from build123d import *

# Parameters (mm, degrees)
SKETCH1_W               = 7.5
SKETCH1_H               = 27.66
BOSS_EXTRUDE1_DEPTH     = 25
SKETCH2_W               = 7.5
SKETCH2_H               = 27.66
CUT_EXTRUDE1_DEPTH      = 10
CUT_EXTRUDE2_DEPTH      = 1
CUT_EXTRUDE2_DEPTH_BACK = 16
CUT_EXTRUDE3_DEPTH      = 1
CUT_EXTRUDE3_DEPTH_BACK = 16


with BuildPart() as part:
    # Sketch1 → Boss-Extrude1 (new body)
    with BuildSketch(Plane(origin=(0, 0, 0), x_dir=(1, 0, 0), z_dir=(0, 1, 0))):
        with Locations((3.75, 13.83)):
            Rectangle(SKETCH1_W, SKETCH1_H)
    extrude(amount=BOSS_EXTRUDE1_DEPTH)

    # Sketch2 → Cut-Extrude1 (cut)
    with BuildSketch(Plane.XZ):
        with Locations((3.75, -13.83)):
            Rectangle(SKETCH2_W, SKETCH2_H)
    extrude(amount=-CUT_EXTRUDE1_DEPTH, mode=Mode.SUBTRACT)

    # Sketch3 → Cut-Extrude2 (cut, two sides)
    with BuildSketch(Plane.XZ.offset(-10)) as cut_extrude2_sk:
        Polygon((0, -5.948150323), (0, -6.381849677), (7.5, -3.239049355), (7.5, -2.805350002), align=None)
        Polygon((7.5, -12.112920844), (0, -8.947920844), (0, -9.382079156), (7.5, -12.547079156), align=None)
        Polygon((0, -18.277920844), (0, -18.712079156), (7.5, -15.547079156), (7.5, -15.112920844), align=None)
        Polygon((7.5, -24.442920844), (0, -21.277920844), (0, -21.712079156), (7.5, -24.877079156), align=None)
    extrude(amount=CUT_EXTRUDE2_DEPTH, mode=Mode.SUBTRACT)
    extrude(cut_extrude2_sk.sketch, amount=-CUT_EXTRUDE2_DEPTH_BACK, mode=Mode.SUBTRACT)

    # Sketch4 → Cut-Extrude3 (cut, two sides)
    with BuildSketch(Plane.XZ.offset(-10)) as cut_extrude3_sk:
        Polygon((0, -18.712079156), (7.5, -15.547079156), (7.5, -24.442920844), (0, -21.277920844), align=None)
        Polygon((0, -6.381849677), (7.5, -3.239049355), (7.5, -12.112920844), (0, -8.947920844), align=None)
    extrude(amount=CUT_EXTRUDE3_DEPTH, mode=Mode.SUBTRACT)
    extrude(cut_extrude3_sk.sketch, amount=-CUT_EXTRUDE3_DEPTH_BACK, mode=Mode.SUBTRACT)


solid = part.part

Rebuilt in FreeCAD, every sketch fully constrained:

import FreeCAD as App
import Part
import Sketcher
from FreeCAD import Vector

doc = App.newDocument("Part")
body = doc.addObject("PartDesign::Body", "Body")
body.AllowCompound = True

# Sketch on XZ plane
sketch1 = body.newObject("Sketcher::SketchObject", "Sketch")
sketch1.AttachmentSupport = (doc.getObject("XZ_Plane"), [""])
sketch1.MapMode = "FlatFace"
sketch1.addGeometry([
    Part.LineSegment(Vector(0, -27.66, 0), Vector(0, 0, 0)),
    Part.LineSegment(Vector(0, 0, 0), Vector(7.5, 0, 0)),
    Part.LineSegment(Vector(7.5, 0, 0), Vector(7.5, -27.66, 0)),
    Part.LineSegment(Vector(7.5, -27.66, 0), Vector(0, -27.66, 0)),
], False)
sketch1.addConstraint([
    Sketcher.Constraint("Coincident", 0, 2, 1, 1),
    Sketcher.Constraint("Coincident", 1, 2, 2, 1),
    Sketcher.Constraint("Coincident", 2, 2, 3, 1),
    Sketcher.Constraint("Coincident", 3, 2, 0, 1),
    Sketcher.Constraint("Vertical", 0),
    Sketcher.Constraint("Horizontal", 1),
    Sketcher.Constraint("Vertical", 2),
    Sketcher.Constraint("Horizontal", 3),
    Sketcher.Constraint("Coincident", 0, 2, -1, 1),
    Sketcher.Constraint("DistanceX", 1, 1, 1, 2, 7.5),
    Sketcher.Constraint("DistanceY", 0, 1, 0, 2, 27.66),
])
pad1 = body.newObject("PartDesign::Pad", "Pad")
pad1.Profile = sketch1
pad1.Length = 25
pad1.Reversed = True

# Sketch on XZ plane
sketch2 = body.newObject("Sketcher::SketchObject", "Sketch001")
sketch2.AttachmentSupport = (doc.getObject("XZ_Plane"), [""])
sketch2.MapMode = "FlatFace"
sketch2.addGeometry([
    Part.LineSegment(Vector(0, 0, 0), Vector(0, -27.66, 0)),
    Part.LineSegment(Vector(0, -27.66, 0), Vector(7.5, -27.66, 0)),
    Part.LineSegment(Vector(7.5, -27.66, 0), Vector(7.5, 0, 0)),
    Part.LineSegment(Vector(7.5, 0, 0), Vector(0, 0, 0)),
], False)
sketch2.addConstraint([
    Sketcher.Constraint("Coincident", 0, 2, 1, 1),
    Sketcher.Constraint("Coincident", 1, 2, 2, 1),
    Sketcher.Constraint("Coincident", 2, 2, 3, 1),
    Sketcher.Constraint("Coincident", 3, 2, 0, 1),
    Sketcher.Constraint("Vertical", 0),
    Sketcher.Constraint("Horizontal", 1),
    Sketcher.Constraint("Vertical", 2),
    Sketcher.Constraint("Horizontal", 3),
    Sketcher.Constraint("Coincident", 3, 2, -1, 1),
    Sketcher.Constraint("DistanceX", 1, 1, 1, 2, 7.5),
    Sketcher.Constraint("DistanceY", 0, 2, 0, 1, 27.66),
])
pocket1 = body.newObject("PartDesign::Pocket", "Pocket")
pocket1.Profile = sketch2
pocket1.Length = 10

# Sketch on XZ plane
sketch3 = body.newObject("Sketcher::SketchObject", "Sketch002")
sketch3.AttachmentSupport = (doc.getObject("XZ_Plane"), [""])
sketch3.MapMode = "FlatFace"
sketch3.AttachmentOffset = App.Placement(Vector(0, 0, -10), App.Rotation())
sketch3.addGeometry([
    Part.LineSegment(Vector(0, -5.94815, 0), Vector(0, -6.38185, 0)),  # 0
    Part.LineSegment(Vector(0, -6.38185, 0), Vector(7.5, -3.239049, 0)),  # 1
    Part.LineSegment(Vector(7.5, -3.239049, 0), Vector(7.5, -2.80535, 0)),  # 2
    Part.LineSegment(Vector(7.5, -2.80535, 0), Vector(0, -5.94815, 0)),  # 3
    Part.LineSegment(Vector(7.5, -12.112921, 0), Vector(0, -8.947921, 0)),  # 4
    Part.LineSegment(Vector(0, -8.947921, 0), Vector(0, -9.382079, 0)),  # 5
    Part.LineSegment(Vector(0, -9.382079, 0), Vector(7.5, -12.547079, 0)),  # 6
    Part.LineSegment(Vector(7.5, -12.547079, 0), Vector(7.5, -12.112921, 0)),  # 7
    Part.LineSegment(Vector(0, -18.277921, 0), Vector(0, -18.712079, 0)),  # 8
    Part.LineSegment(Vector(0, -18.712079, 0), Vector(7.5, -15.547079, 0)),  # 9
    Part.LineSegment(Vector(7.5, -15.547079, 0), Vector(7.5, -15.112921, 0)),  # 10
    Part.LineSegment(Vector(7.5, -15.112921, 0), Vector(0, -18.277921, 0)),  # 11
    Part.LineSegment(Vector(7.5, -24.442921, 0), Vector(0, -21.277921, 0)),  # 12
    Part.LineSegment(Vector(0, -21.277921, 0), Vector(0, -21.712079, 0)),  # 13
    Part.LineSegment(Vector(0, -21.712079, 0), Vector(7.5, -24.877079, 0)),  # 14
    Part.LineSegment(Vector(7.5, -24.877079, 0), Vector(7.5, -24.442921, 0)),  # 15
], False)
sketch3.addConstraint([
    Sketcher.Constraint("Coincident", 0, 2, 1, 1),
    Sketcher.Constraint("Coincident", 1, 2, 2, 1),
    Sketcher.Constraint("Coincident", 2, 2, 3, 1),
    Sketcher.Constraint("Coincident", 3, 2, 0, 1),
    Sketcher.Constraint("Coincident", 4, 2, 5, 1),
    Sketcher.Constraint("Coincident", 5, 2, 6, 1),
    Sketcher.Constraint("Coincident", 6, 2, 7, 1),
    Sketcher.Constraint("Coincident", 7, 2, 4, 1),
    Sketcher.Constraint("Coincident", 8, 2, 9, 1),
    Sketcher.Constraint("Coincident", 9, 2, 10, 1),
    Sketcher.Constraint("Coincident", 10, 2, 11, 1),
    Sketcher.Constraint("Coincident", 11, 2, 8, 1),
    Sketcher.Constraint("Coincident", 12, 2, 13, 1),
    Sketcher.Constraint("Coincident", 13, 2, 14, 1),
    Sketcher.Constraint("Coincident", 14, 2, 15, 1),
    Sketcher.Constraint("Coincident", 15, 2, 12, 1),
    Sketcher.Constraint("Vertical", 0),
    Sketcher.Constraint("Vertical", 2),
    Sketcher.Constraint("Vertical", 5),
    Sketcher.Constraint("Vertical", 7),
    Sketcher.Constraint("Vertical", 8),
    Sketcher.Constraint("Vertical", 10),
    Sketcher.Constraint("Vertical", 13),
    Sketcher.Constraint("Vertical", 15),
    Sketcher.Constraint("PointOnObject", 0, 2, -2),
    Sketcher.Constraint("PointOnObject", 4, 2, -2),
    Sketcher.Constraint("PointOnObject", 8, 2, -2),
    Sketcher.Constraint("PointOnObject", 12, 2, -2),
    Sketcher.Constraint("Parallel", 1, 3),
    Sketcher.Constraint("Parallel", 4, 6),
    Sketcher.Constraint("Parallel", 9, 11),
    Sketcher.Constraint("Parallel", 6, 12),
    Sketcher.Constraint("Parallel", 12, 14),
    Sketcher.Constraint("Vertical", 2, 2, 6, 2),
    Sketcher.Constraint("Vertical", 7, 2, 9, 2),
    Sketcher.Constraint("Vertical", 10, 2, 14, 2),
    Sketcher.Constraint("Equal", 7, 8),
    Sketcher.Constraint("Equal", 10, 13),
    Sketcher.Constraint("Equal", 6, 9),
    Sketcher.Constraint("DistanceY", 9, 2, 6, 2, 3.0),
    Sketcher.Constraint("DistanceY", 12, 2, 11, 2, 3.0),
    Sketcher.Constraint("DistanceX", -1, 1, 1, 2, 7.5),
    Sketcher.Constraint("DistanceY", 8, 2, 5, 2, 9.33),
    Sketcher.Constraint("DistanceY", 0, 2, 0, 1, 0.433699),
    Sketcher.Constraint("DistanceY", 5, 2, 5, 1, 0.434158),
    Sketcher.Constraint("DistanceY", 0, 2, 1, 2, 3.1428),
    Sketcher.Constraint("DistanceY", 0, 2, -1, 1, 6.38185),
    Sketcher.Constraint("DistanceY", 4, 2, -1, 1, 8.947921),
])
pocket2 = body.newObject("PartDesign::Pocket", "Pocket001")
pocket2.Profile = sketch3
pocket2.Type = "ThroughAll"
pocket2.Midplane = True

# Sketch on XZ plane
sketch4 = body.newObject("Sketcher::SketchObject", "Sketch003")
sketch4.AttachmentSupport = (doc.getObject("XZ_Plane"), [""])
sketch4.MapMode = "FlatFace"
sketch4.AttachmentOffset = App.Placement(Vector(0, 0, -10), App.Rotation())
sketch4.addGeometry([
    Part.LineSegment(Vector(7.5, -15.547079, 0), Vector(0, -18.712079, 0)),  # 0
    Part.LineSegment(Vector(0, -18.712079, 0), Vector(0, -21.277921, 0)),  # 1
    Part.LineSegment(Vector(0, -21.277921, 0), Vector(7.5, -24.442921, 0)),  # 2
    Part.LineSegment(Vector(7.5, -24.442921, 0), Vector(7.5, -15.547079, 0)),  # 3
    Part.LineSegment(Vector(7.5, -3.239049, 0), Vector(0, -6.38185, 0)),  # 4
    Part.LineSegment(Vector(0, -6.38185, 0), Vector(0, -8.947921, 0)),  # 5
    Part.LineSegment(Vector(0, -8.947921, 0), Vector(7.5, -12.112921, 0)),  # 6
    Part.LineSegment(Vector(7.5, -12.112921, 0), Vector(7.5, -3.239049, 0)),  # 7
], False)
sketch4.addConstraint([
    Sketcher.Constraint("Coincident", 0, 2, 1, 1),
    Sketcher.Constraint("Coincident", 1, 2, 2, 1),
    Sketcher.Constraint("Coincident", 2, 2, 3, 1),
    Sketcher.Constraint("Coincident", 3, 2, 0, 1),
    Sketcher.Constraint("Coincident", 4, 2, 5, 1),
    Sketcher.Constraint("Coincident", 5, 2, 6, 1),
    Sketcher.Constraint("Coincident", 6, 2, 7, 1),
    Sketcher.Constraint("Coincident", 7, 2, 4, 1),
    Sketcher.Constraint("Vertical", 1),
    Sketcher.Constraint("Vertical", 3),
    Sketcher.Constraint("Vertical", 5),
    Sketcher.Constraint("Vertical", 7),
    Sketcher.Constraint("PointOnObject", 0, 2, -2),
    Sketcher.Constraint("PointOnObject", 4, 2, -2),
    Sketcher.Constraint("Parallel", 2, 6),
    Sketcher.Constraint("Vertical", 3, 2, 6, 2),
    Sketcher.Constraint("Equal", 0, 2),
    Sketcher.Constraint("DistanceX", -1, 1, 2, 2, 7.5),
    Sketcher.Constraint("DistanceY", 1, 2, 5, 2, 12.33),
    Sketcher.Constraint("DistanceY", 2, 2, 1, 2, 3.165),
    Sketcher.Constraint("DistanceY", 1, 2, 1, 1, 2.565842),
    Sketcher.Constraint("DistanceY", 5, 2, 5, 1, 2.566071),
    Sketcher.Constraint("DistanceY", 7, 1, 7, 2, 8.873871),
    Sketcher.Constraint("DistanceY", 0, 2, -1, 1, 18.712079),
])
pocket3 = body.newObject("PartDesign::Pocket", "Pocket002")
pocket3.Profile = sketch4
pocket3.Type = "ThroughAll"
pocket3.Midplane = True

doc.recompute()
